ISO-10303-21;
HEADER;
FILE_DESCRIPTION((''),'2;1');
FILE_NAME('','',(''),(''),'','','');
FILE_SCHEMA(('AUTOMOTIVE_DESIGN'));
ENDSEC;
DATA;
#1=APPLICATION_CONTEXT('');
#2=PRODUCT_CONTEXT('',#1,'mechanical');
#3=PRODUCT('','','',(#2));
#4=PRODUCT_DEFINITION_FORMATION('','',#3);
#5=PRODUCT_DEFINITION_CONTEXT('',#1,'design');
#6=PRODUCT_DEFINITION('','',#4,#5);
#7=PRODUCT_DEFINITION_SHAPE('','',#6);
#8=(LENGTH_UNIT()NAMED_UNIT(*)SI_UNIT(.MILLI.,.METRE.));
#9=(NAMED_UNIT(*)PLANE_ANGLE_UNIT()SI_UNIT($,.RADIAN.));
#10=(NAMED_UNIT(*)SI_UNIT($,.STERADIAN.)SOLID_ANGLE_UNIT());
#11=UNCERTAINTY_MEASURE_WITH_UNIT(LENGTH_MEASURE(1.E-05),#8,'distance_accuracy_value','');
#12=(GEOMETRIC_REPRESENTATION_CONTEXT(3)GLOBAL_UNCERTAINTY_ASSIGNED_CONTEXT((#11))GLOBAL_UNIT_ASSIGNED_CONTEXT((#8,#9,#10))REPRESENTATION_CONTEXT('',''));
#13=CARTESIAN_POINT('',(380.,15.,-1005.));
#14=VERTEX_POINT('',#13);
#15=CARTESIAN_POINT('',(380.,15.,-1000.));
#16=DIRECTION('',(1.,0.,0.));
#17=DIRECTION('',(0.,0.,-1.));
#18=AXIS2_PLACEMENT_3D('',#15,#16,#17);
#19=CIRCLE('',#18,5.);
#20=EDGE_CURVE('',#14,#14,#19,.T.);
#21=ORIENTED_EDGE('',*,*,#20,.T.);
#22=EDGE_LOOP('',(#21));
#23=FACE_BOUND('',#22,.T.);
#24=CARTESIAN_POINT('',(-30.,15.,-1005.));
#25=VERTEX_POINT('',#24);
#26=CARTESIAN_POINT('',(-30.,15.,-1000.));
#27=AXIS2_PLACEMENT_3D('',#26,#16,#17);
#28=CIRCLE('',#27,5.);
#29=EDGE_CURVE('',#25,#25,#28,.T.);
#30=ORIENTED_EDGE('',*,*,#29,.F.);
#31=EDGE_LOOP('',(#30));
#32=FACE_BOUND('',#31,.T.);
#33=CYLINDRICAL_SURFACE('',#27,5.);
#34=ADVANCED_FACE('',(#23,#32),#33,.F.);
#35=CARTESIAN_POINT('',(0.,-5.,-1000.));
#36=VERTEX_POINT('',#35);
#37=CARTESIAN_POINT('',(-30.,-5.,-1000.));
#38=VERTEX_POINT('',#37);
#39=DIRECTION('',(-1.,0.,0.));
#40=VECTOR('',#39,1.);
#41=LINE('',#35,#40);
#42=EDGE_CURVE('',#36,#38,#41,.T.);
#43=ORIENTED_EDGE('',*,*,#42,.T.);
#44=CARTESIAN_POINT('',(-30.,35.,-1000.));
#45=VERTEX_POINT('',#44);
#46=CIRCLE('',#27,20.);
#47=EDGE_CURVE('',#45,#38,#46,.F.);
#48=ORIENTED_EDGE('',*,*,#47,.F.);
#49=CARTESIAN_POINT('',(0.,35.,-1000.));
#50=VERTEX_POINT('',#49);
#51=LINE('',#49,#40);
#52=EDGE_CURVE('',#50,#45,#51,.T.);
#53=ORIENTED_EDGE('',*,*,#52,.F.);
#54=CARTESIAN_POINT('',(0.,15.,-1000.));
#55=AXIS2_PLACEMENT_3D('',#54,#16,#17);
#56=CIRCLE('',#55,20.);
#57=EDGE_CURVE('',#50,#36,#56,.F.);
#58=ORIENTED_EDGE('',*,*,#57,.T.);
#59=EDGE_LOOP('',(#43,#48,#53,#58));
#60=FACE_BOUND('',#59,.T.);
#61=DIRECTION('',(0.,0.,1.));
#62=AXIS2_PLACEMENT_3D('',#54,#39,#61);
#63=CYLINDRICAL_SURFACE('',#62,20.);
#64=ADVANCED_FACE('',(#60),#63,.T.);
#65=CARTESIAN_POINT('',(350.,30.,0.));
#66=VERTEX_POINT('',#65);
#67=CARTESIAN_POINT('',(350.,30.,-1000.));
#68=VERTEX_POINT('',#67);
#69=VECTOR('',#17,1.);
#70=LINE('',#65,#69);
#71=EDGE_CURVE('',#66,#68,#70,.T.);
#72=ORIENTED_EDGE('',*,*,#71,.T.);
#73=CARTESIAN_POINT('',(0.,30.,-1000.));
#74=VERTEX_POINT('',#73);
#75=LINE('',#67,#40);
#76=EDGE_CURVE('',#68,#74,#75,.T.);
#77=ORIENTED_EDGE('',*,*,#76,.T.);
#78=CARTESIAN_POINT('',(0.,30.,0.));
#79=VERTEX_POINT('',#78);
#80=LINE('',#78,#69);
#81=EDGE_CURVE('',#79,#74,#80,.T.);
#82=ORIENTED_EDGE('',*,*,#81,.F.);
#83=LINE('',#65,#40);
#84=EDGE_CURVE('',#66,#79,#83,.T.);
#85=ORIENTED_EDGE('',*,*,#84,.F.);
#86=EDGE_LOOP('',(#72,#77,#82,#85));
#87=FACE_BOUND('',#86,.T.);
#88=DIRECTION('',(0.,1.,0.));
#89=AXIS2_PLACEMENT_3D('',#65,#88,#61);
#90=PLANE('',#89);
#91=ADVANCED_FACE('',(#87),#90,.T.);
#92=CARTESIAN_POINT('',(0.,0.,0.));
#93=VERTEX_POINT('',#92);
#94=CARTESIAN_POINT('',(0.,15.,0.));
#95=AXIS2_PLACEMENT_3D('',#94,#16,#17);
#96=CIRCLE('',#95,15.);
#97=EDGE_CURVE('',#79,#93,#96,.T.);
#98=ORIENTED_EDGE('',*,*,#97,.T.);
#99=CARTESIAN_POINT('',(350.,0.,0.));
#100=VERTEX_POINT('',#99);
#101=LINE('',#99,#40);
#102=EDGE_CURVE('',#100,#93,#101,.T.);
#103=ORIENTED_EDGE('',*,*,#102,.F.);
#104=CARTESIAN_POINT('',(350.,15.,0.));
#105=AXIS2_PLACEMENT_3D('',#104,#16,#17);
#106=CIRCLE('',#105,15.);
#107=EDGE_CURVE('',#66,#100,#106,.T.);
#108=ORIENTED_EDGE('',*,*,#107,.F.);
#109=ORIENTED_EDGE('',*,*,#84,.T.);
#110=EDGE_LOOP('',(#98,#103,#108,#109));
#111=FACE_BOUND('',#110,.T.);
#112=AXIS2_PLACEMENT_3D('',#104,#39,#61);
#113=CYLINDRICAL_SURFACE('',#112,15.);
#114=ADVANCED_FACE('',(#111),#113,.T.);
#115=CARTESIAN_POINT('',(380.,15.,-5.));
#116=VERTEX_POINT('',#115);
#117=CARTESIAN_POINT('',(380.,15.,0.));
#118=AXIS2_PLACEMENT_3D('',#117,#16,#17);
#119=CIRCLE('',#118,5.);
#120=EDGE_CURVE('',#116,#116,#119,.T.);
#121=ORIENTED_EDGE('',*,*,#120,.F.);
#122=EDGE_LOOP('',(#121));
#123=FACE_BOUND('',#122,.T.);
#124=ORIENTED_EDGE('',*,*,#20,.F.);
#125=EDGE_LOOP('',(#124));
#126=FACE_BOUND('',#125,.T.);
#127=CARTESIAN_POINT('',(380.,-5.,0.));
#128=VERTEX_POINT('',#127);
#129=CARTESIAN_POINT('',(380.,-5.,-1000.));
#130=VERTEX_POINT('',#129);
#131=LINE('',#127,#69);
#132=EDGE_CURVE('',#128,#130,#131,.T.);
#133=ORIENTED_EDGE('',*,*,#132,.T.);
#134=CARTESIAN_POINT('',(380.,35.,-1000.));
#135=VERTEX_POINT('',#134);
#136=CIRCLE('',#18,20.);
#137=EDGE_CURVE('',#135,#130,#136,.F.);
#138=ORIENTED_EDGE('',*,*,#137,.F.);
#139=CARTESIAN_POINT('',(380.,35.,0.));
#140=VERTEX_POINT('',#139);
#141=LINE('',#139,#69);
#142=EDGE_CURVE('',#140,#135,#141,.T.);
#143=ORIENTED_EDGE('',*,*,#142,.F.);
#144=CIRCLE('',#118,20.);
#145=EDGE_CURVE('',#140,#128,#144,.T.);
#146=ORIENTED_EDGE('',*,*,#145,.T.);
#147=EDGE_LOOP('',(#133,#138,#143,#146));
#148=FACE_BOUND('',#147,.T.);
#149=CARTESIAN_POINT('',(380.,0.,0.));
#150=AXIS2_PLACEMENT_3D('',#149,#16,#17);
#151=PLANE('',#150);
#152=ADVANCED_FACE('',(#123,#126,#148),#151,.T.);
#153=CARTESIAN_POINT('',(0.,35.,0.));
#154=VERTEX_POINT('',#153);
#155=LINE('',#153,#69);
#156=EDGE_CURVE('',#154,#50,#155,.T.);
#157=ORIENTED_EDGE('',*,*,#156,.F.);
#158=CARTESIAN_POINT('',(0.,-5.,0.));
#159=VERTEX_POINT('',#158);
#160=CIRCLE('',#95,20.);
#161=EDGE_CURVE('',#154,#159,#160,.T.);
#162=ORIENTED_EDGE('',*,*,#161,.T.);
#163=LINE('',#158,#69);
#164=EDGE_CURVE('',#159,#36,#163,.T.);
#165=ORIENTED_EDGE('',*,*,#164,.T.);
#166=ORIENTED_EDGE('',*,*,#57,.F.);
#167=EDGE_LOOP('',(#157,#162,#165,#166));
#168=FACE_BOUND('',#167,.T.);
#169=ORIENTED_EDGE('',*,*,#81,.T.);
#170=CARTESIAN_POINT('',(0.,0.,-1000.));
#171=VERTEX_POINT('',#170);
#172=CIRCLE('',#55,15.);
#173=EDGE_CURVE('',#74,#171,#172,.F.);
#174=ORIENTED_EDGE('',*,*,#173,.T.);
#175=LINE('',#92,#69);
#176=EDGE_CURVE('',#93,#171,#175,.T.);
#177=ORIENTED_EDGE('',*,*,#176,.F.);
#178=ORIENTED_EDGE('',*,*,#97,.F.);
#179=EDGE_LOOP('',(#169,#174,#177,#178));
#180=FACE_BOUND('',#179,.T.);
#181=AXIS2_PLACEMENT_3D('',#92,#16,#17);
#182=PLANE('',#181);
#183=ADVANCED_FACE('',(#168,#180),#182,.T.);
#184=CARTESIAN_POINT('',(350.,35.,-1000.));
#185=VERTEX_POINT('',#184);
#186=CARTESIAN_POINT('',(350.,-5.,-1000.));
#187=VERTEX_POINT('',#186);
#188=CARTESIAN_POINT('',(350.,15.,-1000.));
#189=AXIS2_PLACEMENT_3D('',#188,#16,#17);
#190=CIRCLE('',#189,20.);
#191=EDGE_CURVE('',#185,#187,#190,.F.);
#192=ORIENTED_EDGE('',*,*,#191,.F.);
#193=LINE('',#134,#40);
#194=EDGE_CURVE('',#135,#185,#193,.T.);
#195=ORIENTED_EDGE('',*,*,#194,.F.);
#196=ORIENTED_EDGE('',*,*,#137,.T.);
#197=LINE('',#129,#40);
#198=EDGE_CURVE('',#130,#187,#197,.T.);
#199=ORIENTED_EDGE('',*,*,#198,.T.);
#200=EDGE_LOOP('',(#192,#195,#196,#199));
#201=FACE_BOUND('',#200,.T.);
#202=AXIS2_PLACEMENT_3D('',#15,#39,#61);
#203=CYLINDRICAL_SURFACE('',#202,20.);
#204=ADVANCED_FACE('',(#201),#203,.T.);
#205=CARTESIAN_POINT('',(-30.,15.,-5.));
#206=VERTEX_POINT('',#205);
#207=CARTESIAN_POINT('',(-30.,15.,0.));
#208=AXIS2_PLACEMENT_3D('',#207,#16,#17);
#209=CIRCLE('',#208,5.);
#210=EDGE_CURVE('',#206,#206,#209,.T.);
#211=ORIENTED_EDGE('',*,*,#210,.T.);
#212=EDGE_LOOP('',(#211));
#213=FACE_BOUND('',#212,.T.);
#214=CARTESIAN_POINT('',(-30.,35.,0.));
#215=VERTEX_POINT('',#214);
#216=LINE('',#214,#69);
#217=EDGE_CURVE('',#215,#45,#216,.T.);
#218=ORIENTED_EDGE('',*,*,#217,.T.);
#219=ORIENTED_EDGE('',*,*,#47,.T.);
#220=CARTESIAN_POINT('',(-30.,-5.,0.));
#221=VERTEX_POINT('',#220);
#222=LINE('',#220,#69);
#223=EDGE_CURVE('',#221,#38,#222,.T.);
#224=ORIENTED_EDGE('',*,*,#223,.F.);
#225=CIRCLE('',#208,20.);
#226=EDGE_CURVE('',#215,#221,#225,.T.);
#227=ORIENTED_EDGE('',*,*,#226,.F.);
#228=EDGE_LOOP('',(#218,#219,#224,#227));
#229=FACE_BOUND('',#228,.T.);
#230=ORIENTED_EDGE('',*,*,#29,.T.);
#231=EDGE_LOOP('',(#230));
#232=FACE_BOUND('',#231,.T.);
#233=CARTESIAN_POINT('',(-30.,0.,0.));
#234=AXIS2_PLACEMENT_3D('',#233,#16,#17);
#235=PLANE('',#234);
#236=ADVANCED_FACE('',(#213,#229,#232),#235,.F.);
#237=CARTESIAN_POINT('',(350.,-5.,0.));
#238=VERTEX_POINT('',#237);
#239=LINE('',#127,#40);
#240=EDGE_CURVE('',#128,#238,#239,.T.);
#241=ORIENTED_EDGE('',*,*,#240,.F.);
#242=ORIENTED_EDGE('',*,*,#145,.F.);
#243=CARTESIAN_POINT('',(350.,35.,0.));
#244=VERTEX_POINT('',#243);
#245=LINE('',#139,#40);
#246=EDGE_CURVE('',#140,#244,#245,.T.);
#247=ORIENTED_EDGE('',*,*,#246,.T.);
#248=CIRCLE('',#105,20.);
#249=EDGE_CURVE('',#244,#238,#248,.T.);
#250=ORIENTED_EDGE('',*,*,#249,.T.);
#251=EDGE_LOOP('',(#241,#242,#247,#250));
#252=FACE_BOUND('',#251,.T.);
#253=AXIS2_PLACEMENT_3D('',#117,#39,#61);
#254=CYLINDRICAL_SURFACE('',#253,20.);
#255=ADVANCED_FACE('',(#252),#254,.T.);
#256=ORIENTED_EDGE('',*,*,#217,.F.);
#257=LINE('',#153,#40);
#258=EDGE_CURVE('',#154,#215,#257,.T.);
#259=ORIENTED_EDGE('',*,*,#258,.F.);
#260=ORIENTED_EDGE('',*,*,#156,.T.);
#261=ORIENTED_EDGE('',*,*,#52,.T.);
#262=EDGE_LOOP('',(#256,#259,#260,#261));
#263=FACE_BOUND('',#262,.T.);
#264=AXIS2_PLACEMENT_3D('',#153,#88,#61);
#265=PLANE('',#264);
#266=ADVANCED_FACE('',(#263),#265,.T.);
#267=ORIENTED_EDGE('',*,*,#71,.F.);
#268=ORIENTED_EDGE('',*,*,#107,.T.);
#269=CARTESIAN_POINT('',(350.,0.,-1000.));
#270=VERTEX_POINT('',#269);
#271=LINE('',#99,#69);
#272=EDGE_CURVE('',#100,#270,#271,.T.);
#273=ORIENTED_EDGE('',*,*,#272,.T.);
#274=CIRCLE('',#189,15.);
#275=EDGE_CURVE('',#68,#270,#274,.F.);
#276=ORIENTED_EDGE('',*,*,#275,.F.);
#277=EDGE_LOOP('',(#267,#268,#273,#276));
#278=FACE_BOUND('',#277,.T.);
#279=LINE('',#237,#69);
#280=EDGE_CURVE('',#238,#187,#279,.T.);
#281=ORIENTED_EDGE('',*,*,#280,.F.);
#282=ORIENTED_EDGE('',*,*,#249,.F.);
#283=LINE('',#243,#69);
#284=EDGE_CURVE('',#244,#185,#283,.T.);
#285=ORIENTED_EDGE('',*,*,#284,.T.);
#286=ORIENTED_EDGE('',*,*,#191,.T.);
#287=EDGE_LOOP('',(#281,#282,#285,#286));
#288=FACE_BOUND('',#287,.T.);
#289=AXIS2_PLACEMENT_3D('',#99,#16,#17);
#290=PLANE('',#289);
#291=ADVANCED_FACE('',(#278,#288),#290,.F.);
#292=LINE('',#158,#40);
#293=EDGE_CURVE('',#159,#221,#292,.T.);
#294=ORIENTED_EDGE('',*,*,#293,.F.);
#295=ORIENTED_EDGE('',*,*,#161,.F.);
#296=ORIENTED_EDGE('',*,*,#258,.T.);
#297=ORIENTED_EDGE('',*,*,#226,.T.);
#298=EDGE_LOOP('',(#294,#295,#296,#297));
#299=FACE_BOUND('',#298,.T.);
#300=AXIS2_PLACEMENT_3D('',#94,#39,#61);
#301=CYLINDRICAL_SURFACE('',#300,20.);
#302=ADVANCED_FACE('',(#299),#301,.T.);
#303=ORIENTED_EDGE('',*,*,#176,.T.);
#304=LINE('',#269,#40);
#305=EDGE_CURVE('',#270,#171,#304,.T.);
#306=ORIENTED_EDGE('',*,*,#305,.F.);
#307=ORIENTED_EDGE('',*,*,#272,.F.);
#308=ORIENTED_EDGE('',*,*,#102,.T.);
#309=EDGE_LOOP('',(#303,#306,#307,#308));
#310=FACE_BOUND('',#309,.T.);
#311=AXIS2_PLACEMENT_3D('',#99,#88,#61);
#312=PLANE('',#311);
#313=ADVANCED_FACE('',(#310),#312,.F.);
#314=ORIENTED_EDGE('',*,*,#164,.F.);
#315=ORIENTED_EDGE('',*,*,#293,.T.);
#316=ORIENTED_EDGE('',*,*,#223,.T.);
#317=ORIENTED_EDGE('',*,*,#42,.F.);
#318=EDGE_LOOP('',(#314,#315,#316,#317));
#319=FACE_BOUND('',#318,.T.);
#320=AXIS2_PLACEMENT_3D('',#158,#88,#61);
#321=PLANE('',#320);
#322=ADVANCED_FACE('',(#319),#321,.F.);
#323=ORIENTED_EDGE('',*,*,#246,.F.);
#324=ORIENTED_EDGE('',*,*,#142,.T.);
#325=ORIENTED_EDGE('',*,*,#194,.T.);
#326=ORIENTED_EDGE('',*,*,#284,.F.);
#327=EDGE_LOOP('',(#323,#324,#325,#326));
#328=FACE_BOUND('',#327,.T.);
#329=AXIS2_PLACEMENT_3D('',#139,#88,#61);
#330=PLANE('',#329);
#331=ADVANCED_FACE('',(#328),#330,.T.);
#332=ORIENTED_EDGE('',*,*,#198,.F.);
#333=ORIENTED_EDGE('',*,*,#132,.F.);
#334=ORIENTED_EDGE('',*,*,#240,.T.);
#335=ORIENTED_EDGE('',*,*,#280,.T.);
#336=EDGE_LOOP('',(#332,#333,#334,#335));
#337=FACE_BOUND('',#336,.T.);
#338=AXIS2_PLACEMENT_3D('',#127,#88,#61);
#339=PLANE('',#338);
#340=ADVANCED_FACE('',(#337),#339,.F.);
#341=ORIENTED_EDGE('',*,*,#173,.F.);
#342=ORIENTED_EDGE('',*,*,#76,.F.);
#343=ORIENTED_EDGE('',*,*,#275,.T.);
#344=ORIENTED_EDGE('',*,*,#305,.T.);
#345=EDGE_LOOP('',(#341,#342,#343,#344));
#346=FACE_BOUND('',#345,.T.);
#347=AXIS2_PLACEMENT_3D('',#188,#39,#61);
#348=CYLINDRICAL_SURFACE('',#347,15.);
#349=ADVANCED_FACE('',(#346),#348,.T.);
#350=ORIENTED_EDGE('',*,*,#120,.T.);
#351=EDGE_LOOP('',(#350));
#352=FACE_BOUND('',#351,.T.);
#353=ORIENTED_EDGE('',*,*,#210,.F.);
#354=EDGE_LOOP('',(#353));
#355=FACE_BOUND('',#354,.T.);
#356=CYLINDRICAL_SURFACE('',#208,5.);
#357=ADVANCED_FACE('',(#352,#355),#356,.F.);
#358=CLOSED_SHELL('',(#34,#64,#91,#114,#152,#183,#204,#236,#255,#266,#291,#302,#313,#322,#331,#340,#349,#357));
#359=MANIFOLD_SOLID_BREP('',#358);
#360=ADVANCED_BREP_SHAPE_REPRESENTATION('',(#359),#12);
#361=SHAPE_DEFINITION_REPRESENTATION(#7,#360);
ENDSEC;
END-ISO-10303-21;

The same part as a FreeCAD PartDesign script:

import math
import FreeCAD as App
import Part
import Sketcher

V = App.Vector

doc = App.newDocument("Part")
body = doc.addObject("PartDesign::Body", "Body")

sketch1 = body.newObject("Sketcher::SketchObject", "Sketch")
sketch1.AttachmentSupport = (doc.getObject("YZ_Plane"), [""])
sketch1.MapMode = "FlatFace"
sketch1.addGeometry([
    Part.ArcOfCircle(Part.Circle(V(15, 0, 0), V(0, 0, 1), 15), math.radians(0), math.radians(180)),
    Part.LineSegment(V(0, 0, 0), V(0, -1000, 0)),
    Part.ArcOfCircle(Part.Circle(V(15, -1000, 0), V(0, 0, 1), 15), math.radians(180), math.radians(360)),
    Part.LineSegment(V(30, -1000, 0), V(30, 0, 0)),
], False)
sketch1.addConstraint([
    Sketcher.Constraint("Tangent", 0, 2, 1, 1),
    Sketcher.Constraint("Tangent", 1, 2, 2, 1),
    Sketcher.Constraint("Tangent", 2, 2, 3, 1),
    Sketcher.Constraint("Tangent", 3, 2, 0, 1),
    Sketcher.Constraint("Vertical", 1),
    Sketcher.Constraint("Vertical", 3),
    Sketcher.Constraint("Coincident", 0, 2, -1, 1),
    Sketcher.Constraint("Radius", 0, 15.0),
    Sketcher.Constraint("DistanceY", 1, 2, 1, 1, 1000.0),
])
pad1 = body.newObject("PartDesign::Pad", "Pad")
pad1.Profile = sketch1
pad1.Length = 350

sketch2 = body.newObject("Sketcher::SketchObject", "Sketch001")
sketch2.AttachmentSupport = (doc.getObject("YZ_Plane"), [""])
sketch2.MapMode = "FlatFace"
sketch2.AttachmentOffset = App.Placement(V(0, 0, 350), App.Rotation())
sketch2.addGeometry([
    Part.ArcOfCircle(Part.Circle(V(15, 0, 0), V(0, 0, 1), 20), math.radians(0), math.radians(180)),
    Part.LineSegment(V(-5, 0, 0), V(-5, -1000, 0)),
    Part.ArcOfCircle(Part.Circle(V(15, -1000, 0), V(0, 0, 1), 20), math.radians(180), math.radians(360)),
    Part.LineSegment(V(35, -1000, 0), V(35, 0, 0)),
], False)
sketch2.addConstraint([
    Sketcher.Constraint("Tangent", 0, 2, 1, 1),
    Sketcher.Constraint("Tangent", 1, 2, 2, 1),
    Sketcher.Constraint("Tangent", 2, 2, 3, 1),
    Sketcher.Constraint("Tangent", 3, 2, 0, 1),
    Sketcher.Constraint("Vertical", 1),
    Sketcher.Constraint("Vertical", 3),
    Sketcher.Constraint("PointOnObject", 0, 3, -1),
    Sketcher.Constraint("Radius", 0, 20.0),
    Sketcher.Constraint("DistanceY", 1, 2, 1, 1, 1000.0),
    Sketcher.Constraint("DistanceX", -1, 1, 0, 3, 15.0),
])
pad2 = body.newObject("PartDesign::Pad", "Pad001")
pad2.Profile = sketch2
pad2.Length = 30
doc.recompute()

linearpattern = body.newObject("PartDesign::LinearPattern", "LinearPattern")
linearpattern.Originals = [pad2]
linearpattern.Direction = (doc.getObject("X_Axis"), [""])
linearpattern.Mode = "offset"
linearpattern.Offset = 380
linearpattern.Occurrences = 2
linearpattern.Reversed = True
body.Tip = linearpattern

sketch3 = body.newObject("Sketcher::SketchObject", "Sketch002")
sketch3.AttachmentSupport = (doc.getObject("YZ_Plane"), [""])
sketch3.MapMode = "FlatFace"
sketch3.AttachmentOffset = App.Placement(V(0, 0, 380), App.Rotation())
sketch3.addGeometry([
    Part.Circle(V(15, 0, 0), V(0, 0, 1), 5),
    Part.Circle(V(15, -1000, 0), V(0, 0, 1), 5),
], False)
sketch3.addConstraint([
    Sketcher.Constraint("Equal", 0, 1),
    Sketcher.Constraint("PointOnObject", 0, 3, -1),
    Sketcher.Constraint("Vertical", 0, 3, 1, 3),
    Sketcher.Constraint("Diameter", 0, 10.0),
    Sketcher.Constraint("DistanceX", -1, 1, 0, 3, 15.0),
    Sketcher.Constraint("DistanceY", 1, 3, -1, 1, 1000.0),
])
pocket1 = body.newObject("PartDesign::Pocket", "Pocket")
pocket1.Profile = sketch3
pocket1.Type = "ThroughAll"

doc.recompute()
